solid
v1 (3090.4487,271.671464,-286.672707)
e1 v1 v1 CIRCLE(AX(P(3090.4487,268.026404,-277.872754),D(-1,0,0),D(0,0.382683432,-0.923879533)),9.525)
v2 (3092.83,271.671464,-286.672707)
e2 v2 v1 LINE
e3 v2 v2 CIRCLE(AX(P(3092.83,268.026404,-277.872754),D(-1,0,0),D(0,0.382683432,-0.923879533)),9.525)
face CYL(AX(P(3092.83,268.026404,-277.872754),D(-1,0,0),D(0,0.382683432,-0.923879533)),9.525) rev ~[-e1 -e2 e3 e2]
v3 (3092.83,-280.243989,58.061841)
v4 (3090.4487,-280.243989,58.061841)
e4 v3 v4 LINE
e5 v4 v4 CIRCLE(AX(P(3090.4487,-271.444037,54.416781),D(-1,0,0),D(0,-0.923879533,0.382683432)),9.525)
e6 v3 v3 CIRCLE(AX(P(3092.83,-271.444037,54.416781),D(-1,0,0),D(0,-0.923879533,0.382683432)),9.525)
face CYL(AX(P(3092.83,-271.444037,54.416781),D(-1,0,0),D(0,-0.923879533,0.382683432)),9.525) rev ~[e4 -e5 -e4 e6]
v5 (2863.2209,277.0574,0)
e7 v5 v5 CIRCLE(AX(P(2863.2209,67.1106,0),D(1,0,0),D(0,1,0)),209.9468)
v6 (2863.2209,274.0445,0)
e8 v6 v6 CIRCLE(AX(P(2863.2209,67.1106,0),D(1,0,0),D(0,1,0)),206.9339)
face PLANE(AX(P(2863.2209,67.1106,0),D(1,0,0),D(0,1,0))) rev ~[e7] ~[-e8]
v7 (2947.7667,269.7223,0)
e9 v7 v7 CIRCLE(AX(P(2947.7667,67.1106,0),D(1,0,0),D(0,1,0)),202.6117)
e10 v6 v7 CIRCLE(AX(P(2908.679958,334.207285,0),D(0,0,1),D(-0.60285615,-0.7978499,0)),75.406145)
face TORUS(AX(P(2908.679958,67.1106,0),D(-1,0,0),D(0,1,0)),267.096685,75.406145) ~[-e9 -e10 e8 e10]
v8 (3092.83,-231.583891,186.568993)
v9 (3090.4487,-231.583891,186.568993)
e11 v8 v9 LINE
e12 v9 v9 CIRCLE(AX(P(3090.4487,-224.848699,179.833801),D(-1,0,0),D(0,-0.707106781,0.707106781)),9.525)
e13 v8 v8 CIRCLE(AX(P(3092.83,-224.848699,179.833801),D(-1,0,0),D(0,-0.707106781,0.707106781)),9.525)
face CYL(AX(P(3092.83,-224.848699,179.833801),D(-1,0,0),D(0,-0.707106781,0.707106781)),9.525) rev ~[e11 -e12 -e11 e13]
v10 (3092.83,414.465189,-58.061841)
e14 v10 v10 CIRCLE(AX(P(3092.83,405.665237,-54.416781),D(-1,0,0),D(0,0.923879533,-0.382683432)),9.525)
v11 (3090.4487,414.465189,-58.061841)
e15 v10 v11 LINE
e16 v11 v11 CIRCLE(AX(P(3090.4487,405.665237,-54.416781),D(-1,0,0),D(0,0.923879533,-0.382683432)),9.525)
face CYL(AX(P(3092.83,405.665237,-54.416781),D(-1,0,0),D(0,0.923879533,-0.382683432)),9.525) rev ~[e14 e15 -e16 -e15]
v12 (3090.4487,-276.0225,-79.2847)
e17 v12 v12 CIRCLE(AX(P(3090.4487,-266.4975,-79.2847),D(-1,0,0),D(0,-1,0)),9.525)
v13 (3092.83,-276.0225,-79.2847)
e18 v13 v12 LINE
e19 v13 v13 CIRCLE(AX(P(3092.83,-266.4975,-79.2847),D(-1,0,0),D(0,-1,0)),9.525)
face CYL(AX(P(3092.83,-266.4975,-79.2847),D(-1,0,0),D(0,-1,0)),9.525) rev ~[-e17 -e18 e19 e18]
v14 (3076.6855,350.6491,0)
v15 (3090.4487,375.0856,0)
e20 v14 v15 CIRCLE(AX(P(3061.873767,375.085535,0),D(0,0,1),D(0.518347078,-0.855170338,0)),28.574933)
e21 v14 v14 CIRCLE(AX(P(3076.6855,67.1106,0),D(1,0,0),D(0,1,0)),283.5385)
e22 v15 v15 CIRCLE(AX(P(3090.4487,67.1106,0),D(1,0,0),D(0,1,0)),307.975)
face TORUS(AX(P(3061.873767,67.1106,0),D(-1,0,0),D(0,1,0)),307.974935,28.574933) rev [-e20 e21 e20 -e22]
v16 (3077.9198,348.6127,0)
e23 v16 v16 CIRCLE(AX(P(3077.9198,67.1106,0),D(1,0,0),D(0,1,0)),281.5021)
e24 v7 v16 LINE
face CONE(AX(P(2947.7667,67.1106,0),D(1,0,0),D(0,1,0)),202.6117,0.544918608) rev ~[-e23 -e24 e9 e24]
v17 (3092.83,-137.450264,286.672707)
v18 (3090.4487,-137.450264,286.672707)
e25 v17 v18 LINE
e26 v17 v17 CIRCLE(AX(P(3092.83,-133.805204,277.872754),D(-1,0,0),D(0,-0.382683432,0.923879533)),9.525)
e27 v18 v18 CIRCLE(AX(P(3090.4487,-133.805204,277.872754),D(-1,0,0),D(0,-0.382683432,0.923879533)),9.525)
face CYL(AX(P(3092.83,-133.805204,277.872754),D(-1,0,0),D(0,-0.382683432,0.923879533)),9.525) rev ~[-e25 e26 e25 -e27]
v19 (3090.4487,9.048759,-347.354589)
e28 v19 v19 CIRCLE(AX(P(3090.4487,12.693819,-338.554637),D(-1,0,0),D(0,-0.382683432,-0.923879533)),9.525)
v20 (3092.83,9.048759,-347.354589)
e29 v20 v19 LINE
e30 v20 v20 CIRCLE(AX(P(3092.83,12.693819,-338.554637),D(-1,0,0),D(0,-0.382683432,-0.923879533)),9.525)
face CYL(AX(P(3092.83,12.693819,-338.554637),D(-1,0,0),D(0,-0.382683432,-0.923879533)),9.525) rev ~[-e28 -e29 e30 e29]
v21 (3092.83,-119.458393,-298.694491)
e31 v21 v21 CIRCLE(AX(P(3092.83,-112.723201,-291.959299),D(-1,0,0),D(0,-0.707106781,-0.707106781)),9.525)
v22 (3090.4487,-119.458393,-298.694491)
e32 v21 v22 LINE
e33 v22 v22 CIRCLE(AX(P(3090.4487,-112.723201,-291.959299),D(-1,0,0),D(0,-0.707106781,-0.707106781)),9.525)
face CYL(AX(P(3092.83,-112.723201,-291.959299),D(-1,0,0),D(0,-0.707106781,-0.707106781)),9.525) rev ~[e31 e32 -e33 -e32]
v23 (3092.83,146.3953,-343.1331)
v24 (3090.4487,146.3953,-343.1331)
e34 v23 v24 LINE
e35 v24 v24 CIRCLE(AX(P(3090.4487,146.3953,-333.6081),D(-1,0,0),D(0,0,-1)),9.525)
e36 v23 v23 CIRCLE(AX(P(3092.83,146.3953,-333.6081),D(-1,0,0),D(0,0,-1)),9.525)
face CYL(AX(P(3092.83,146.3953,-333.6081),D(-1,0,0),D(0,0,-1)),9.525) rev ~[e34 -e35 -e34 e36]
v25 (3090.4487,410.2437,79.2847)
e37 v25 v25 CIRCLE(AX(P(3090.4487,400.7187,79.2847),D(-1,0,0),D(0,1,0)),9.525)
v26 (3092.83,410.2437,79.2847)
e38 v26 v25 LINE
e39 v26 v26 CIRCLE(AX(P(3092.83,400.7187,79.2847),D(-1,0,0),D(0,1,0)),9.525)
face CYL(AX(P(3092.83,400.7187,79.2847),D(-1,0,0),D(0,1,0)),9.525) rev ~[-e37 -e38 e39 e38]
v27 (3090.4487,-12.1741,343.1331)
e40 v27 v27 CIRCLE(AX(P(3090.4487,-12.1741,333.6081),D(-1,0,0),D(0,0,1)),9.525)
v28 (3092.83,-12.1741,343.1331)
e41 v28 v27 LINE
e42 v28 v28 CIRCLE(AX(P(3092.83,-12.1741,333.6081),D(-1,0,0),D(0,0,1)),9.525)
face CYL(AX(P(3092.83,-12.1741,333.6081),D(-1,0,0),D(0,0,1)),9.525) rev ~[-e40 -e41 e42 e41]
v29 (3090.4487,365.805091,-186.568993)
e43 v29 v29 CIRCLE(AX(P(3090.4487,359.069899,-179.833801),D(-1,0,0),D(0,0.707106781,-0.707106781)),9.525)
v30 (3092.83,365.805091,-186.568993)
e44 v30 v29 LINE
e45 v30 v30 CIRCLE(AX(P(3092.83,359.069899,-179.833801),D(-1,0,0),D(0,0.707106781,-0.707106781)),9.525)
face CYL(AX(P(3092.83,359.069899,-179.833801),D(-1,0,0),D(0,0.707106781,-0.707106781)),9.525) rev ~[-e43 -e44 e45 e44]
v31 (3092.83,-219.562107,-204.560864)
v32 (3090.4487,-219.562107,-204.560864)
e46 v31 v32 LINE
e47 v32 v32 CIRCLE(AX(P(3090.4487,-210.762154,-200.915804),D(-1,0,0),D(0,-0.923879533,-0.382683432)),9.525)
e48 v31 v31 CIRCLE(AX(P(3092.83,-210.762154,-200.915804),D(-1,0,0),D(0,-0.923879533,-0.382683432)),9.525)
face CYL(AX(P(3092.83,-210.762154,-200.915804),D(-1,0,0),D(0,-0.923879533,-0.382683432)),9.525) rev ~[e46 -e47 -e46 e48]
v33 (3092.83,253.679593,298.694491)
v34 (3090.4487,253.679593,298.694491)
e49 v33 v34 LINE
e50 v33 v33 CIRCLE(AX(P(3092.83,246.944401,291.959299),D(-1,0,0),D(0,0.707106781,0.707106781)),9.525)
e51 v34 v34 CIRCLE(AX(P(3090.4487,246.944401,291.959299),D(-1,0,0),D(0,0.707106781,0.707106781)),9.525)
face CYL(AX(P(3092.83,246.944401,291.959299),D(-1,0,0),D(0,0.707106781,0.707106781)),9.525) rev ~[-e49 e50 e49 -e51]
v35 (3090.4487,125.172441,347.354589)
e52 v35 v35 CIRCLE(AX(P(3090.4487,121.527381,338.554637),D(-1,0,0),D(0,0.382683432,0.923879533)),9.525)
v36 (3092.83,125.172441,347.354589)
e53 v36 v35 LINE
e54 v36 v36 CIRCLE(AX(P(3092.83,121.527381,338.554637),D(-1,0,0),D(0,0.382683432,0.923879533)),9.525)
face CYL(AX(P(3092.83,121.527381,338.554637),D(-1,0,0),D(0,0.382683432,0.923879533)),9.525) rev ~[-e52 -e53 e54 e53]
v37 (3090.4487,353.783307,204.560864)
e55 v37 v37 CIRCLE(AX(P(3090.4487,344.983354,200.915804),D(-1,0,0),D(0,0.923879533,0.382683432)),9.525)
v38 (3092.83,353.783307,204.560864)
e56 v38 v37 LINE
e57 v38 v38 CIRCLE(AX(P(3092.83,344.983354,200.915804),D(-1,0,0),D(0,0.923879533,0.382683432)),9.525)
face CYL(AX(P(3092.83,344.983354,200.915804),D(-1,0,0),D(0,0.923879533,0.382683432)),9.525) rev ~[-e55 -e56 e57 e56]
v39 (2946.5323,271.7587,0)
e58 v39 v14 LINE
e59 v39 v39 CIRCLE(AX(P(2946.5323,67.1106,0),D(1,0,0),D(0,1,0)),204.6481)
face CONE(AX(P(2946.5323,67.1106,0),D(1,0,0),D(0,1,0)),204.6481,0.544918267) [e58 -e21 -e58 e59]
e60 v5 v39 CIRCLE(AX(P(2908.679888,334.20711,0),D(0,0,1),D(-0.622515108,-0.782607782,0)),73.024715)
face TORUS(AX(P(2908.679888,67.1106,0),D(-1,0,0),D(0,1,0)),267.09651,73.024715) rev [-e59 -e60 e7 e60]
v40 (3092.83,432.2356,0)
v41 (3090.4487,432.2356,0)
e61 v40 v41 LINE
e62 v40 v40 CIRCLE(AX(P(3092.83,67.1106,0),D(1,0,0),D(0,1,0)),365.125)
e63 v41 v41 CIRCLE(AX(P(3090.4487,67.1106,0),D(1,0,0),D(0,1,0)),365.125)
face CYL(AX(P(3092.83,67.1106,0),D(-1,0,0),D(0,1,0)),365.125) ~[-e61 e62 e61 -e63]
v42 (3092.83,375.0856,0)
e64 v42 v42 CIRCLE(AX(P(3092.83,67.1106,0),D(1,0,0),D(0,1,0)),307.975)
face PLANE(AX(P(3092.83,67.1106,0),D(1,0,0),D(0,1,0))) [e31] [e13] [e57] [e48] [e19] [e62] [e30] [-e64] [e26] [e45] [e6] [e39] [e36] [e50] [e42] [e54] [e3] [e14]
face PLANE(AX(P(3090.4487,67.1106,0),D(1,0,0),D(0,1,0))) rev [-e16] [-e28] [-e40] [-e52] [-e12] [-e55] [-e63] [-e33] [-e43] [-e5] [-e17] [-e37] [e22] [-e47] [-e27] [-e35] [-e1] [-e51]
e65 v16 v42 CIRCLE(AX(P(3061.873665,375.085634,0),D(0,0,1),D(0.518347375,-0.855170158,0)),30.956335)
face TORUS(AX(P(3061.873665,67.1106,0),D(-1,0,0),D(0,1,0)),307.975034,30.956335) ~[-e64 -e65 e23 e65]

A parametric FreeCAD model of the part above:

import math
import FreeCAD as App
import Part
import Sketcher

V = App.Vector
Q = App.Units.Quantity

doc = App.newDocument("Part")
params = doc.addObject("Spreadsheet::Sheet", "Params")
for row, (alias, value) in enumerate([
    ("sketch1_radius", "2.968752 in"),
    ("sketch1_radius2", "1.218752 in"),
    ("sketch1_width", "0.093752 in"),
    ("sketch1_height", "2.25 in"),
    ("revolution_angle", "360 deg"),
    ("sketch2_diameter", "0.75 in"),
    ("hole_diameter", "0.75 in"),
], start=1):
    params.set(f"A{row}", alias)
    params.set(f"B{row}", "=" + value)
    params.setAlias(f"B{row}", alias)

body = doc.addObject("PartDesign::Body", "Body")

# Sketch on XY plane
sketch1 = body.newObject("Sketcher::SketchObject", "Sketch")
sketch1.AttachmentSupport = (doc.getObject("XY_Plane"), [""])
sketch1.MapMode = "FlatFace"
sketch1.addGeometry([
    Part.LineSegment(V(3092.8, 375.1, 0), V(3092.8, 432.2, 0)),  # 0
    Part.LineSegment(V(3092.8, 432.2, 0), V(3090.4, 432.2, 0)),  # 1
    Part.LineSegment(V(3090.4, 432.2, 0), V(3090.4, 375.1, 0)),  # 2
    Part.ArcOfCircle(Part.Circle(V(3061.9, 375.1, 0), V(0, 0, 1), 28.6), math.radians(-59), math.radians(0)),  # 3
    Part.LineSegment(V(3076.7, 350.6, 0), V(2946.5, 271.8, 0)),  # 4
    Part.ArcOfCircle(Part.Circle(V(2908.7, 334.2, 0), V(0, 0, 1), 73), math.radians(-128), math.radians(-59)),  # 5
    Part.LineSegment(V(2863.2, 277.1, 0), V(2863.2, 274, 0)),  # 6
    Part.ArcOfCircle(Part.Circle(V(2908.7, 334.2, 0), V(0, 0, 1), 75.4), math.radians(-127), math.radians(-59)),  # 7
    Part.LineSegment(V(2947.8, 269.7, 0), V(3077.9, 348.6, 0)),  # 8
    Part.ArcOfCircle(Part.Circle(V(3061.9, 375.1, 0), V(0, 0, 1), 31), math.radians(-59), math.radians(0)),  # 9
], False)
sketch1.addGeometry(Part.LineSegment(V(2863.2, 67.1, 0), V(3092.8, 67.1, 0)), True)  # axis
sketch1.addConstraint([
    Sketcher.Constraint("Coincident", 0, 2, 1, 1),
    Sketcher.Constraint("Coincident", 1, 2, 2, 1),
    Sketcher.Constraint("Tangent", 2, 2, 3, 2),
    Sketcher.Constraint("Tangent", 3, 1, 4, 1),
    Sketcher.Constraint("Tangent", 4, 2, 5, 2),
    Sketcher.Constraint("Coincident", 5, 1, 6, 1),
    Sketcher.Constraint("Coincident", 6, 2, 7, 1),
    Sketcher.Constraint("Tangent", 7, 2, 8, 1),
    Sketcher.Constraint("Tangent", 8, 2, 9, 1),
    Sketcher.Constraint("Tangent", 9, 2, 0, 1),
    Sketcher.Constraint("Vertical", 0),
    Sketcher.Constraint("Horizontal", 1),
    Sketcher.Constraint("Vertical", 2),
    Sketcher.Constraint("Vertical", 6),
    Sketcher.Constraint("Horizontal", 10),
    Sketcher.Constraint("Coincident", 7, 3, 5, 3),
    Sketcher.Constraint("Coincident", 9, 3, 3, 3),
    Sketcher.Constraint("Parallel", 4, 8),
    Sketcher.Constraint("Vertical", 6, 2, 10, 1),
    Sketcher.Constraint("Vertical", 9, 2, 10, 2),
    Sketcher.Constraint("Radius", 7, Q("2.968752 in")),
    Sketcher.Constraint("Radius", 9, Q("1.218752 in")),
    Sketcher.Constraint("DistanceX", 1, 2, 1, 1, Q("0.093752 in")),
    Sketcher.Constraint("DistanceX", 5, 3, 3, 3, Q("6.031248 in")),
    Sketcher.Constraint("DistanceY", 10, 1, 5, 1, Q("8.265622 in")),
    Sketcher.Constraint("DistanceY", 10, 1, 5, 3, Q("10.515622 in")),
    Sketcher.Constraint("DistanceY", 0, 1, 0, 2, Q("2.25 in")),
    Sketcher.Constraint("DistanceY", 4, 2, 6, 2, Q("0.09 in")),
    Sketcher.Constraint("DistanceX", -1, 1, 3, 3, Q("120.5462 in")),
    Sketcher.Constraint("DistanceY", -1, 1, 8, 2, Q("13.7249 in")),
])
sketch1.setExpression("Constraints[20]", "Params.sketch1_radius")
sketch1.setExpression("Constraints[21]", "Params.sketch1_radius2")
sketch1.setExpression("Constraints[22]", "Params.sketch1_width")
sketch1.setExpression("Constraints[26]", "Params.sketch1_height")
revolution = body.newObject("PartDesign::Revolution", "Revolution")
revolution.Profile = sketch1
revolution.ReferenceAxis = (sketch1, ["Axis0"])
revolution.setExpression("Angle", "Params.revolution_angle")

# Sketch on YZ plane
sketch2 = body.newObject("Sketcher::SketchObject", "Sketch001")
sketch2.AttachmentSupport = (doc.getObject("YZ_Plane"), [""])
sketch2.MapMode = "FlatFace"
sketch2.AttachmentOffset = App.Placement(V(0, 0, 3092.83), App.Rotation())
sketch2.addGeometry(Part.Circle(V(146, -334, 0), V(0, 0, 1), 10), False)
sketch2.addConstraint([
    Sketcher.Constraint("Diameter", 0, Q("0.75 in")),
    Sketcher.Constraint("DistanceX", -1, 1, 0, 3, Q("5.7636 in")),
    Sketcher.Constraint("DistanceY", 0, 3, -1, 1, Q("333.608 mm")),
])
sketch2.setExpression("Constraints[0]", "Params.sketch2_diameter")
doc.recompute()
hole = body.newObject("PartDesign::Hole", "Hole")
hole.Profile = sketch2
hole.ThreadType = "None"
hole.setExpression("Diameter", "Params.hole_diameter")
hole.DepthType = "ThroughAll"
doc.recompute()

datumline = body.newObject("PartDesign::Line", "DatumLine")
datumline.Placement = App.Placement(V(0, 67.1106, 0), App.Rotation(V(0, 0, 1), V(1, 0, 0)))
polarpattern = body.newObject("PartDesign::PolarPattern", "PolarPattern")
polarpattern.Originals = [hole]
polarpattern.Axis = (datumline, [""])
polarpattern.Angle = 360
polarpattern.Occurrences = 16
body.Tip = polarpattern

doc.recompute()
